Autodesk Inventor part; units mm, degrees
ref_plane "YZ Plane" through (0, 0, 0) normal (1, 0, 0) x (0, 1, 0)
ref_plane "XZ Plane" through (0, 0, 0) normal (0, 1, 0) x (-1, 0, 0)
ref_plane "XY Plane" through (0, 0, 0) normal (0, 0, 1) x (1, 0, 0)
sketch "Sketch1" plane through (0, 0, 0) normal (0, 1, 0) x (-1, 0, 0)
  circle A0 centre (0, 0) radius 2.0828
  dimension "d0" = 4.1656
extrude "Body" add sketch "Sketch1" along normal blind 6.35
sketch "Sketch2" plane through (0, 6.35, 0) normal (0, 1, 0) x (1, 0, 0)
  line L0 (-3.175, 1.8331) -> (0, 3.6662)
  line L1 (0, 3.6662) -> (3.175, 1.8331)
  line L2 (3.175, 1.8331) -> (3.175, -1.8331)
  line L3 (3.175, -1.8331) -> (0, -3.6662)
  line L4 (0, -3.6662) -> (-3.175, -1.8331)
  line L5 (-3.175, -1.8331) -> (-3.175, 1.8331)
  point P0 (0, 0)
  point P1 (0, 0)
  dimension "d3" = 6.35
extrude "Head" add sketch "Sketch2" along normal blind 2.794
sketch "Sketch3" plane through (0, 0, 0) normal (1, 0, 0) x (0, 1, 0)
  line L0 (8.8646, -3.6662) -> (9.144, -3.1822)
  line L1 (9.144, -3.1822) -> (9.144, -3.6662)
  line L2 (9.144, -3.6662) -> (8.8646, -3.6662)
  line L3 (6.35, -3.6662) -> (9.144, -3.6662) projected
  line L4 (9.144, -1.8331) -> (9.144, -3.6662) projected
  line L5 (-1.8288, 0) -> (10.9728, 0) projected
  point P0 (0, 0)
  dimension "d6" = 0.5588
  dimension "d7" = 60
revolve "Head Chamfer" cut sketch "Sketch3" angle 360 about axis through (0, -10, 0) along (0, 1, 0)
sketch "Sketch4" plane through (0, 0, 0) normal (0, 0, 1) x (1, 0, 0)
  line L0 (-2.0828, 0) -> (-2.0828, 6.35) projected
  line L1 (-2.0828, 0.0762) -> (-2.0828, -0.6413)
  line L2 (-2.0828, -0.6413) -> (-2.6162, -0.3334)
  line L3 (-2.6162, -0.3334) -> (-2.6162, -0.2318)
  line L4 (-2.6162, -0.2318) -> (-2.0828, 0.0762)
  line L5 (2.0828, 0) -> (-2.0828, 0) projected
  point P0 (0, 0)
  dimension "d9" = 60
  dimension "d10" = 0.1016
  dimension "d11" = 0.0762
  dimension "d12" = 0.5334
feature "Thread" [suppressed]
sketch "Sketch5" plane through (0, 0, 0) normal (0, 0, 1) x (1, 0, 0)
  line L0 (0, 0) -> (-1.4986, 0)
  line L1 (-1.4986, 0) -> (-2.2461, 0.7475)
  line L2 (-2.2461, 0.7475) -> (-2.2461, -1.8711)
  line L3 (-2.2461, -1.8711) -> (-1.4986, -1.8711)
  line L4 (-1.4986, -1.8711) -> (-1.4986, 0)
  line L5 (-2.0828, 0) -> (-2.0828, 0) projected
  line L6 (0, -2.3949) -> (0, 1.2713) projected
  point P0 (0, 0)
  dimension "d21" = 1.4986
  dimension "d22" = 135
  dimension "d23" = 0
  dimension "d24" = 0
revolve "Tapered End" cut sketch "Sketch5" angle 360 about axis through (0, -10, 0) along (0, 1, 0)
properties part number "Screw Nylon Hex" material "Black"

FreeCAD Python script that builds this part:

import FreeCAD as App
import Part
import Sketcher

V = App.Vector
Q = App.Units.Quantity


def add_polygon(sketch, points):
    """Adds a closed chain of lines whose ends are joined by coincident constraints."""
    first, n = sketch.GeometryCount, len(points)
    for a, b in zip(points, points[1:] + points[:1]):
        sketch.addGeometry(Part.LineSegment(App.Vector(*a, 0), App.Vector(*b, 0)), False)
    for i in range(n):
        sketch.addConstraint(Sketcher.Constraint("Coincident", first + i, 2, first + (i + 1) % n, 1))

doc = App.newDocument("Part")
params = doc.addObject("Spreadsheet::Sheet", "Params")
for row, (alias, value) in enumerate([
    ("sketch1_diameter", "0.164 in"),
    ("pad1_length", "0.25 in"),
    ("pad2_length", "0.11 in"),
    ("sketch3_length", "0.022 in"),
    ("sketch3_width", "0.011 in"),
    ("groove_angle", "360 deg"),
    ("groove2_angle", "360 deg"),
], start=1):
    params.set(f"A{row}", alias)
    params.set(f"B{row}", "=" + value)
    params.setAlias(f"B{row}", alias)

body = doc.addObject("PartDesign::Body", "Body")

# Sketch on XZ plane
sketch1 = doc.addObject("Sketcher::SketchObject", "Sketch")
body.addObject(sketch1)
sketch1.AttachmentSupport = (doc.XZ_Plane, [""])
sketch1.MapMode = "FlatFace"
sketch1.addGeometry(Part.Circle(V(0, 0, 0), V(0, 0, 1), 2.0828), False)
sketch1.addConstraint([
    Sketcher.Constraint("Coincident", 0, 3, -1, 1),
    Sketcher.Constraint("Diameter", 0, Q("0.164 in")),
])
sketch1.setExpression("Constraints[1]", "Params.sketch1_diameter")
pad1 = doc.addObject("PartDesign::Pad", "Pad")
body.addObject(pad1)
pad1.Profile = sketch1
pad1.setExpression("Length", "Params.pad1_length")
pad1.Reversed = True

# Sketch on XZ plane
sketch2 = doc.addObject("Sketcher::SketchObject", "Sketch001")
body.addObject(sketch2)
sketch2.AttachmentSupport = (doc.XZ_Plane, [""])
sketch2.MapMode = "FlatFace"
sketch2.AttachmentOffset = App.Placement(V(0, 0, -0.25 * 25.4), App.Rotation())
add_polygon(sketch2, [(0, -3.6662), (-3.175, -1.8331), (-3.175, 1.8331), (0, 3.6662), (3.175, 1.8331), (3.175, -1.8331)])  # lines 0-5
sketch2.addConstraint([
    Sketcher.Constraint("Vertical", 1),
    Sketcher.Constraint("Vertical", 4),
    Sketcher.Constraint("Symmetric", 0, 2, 3, 2, -1, 1),
    Sketcher.Constraint("Symmetric", 2, 2, 5, 2, -1, 1),
    Sketcher.Constraint("PointOnObject", 2, 2, -2),
    Sketcher.Constraint("Parallel", 2, 5),
    Sketcher.Constraint("Horizontal", 1, 2, 3, 2),
    Sketcher.Constraint("DistanceX", 1, 2, 3, 2, Q("0.25 in")),
    Sketcher.Constraint("Angle", 0, Q("149.9998 deg")),
    Sketcher.Constraint("DistanceY", 1, 1, 1, 2, 3.6662),
])
pad2 = doc.addObject("PartDesign::Pad", "Pad001")
body.addObject(pad2)
pad2.Profile = sketch2
pad2.setExpression("Length", "Params.pad2_length")
pad2.Reversed = True

# Sketch on YZ plane
sketch3 = doc.addObject("Sketcher::SketchObject", "Sketch002")
body.addObject(sketch3)
sketch3.AttachmentSupport = (doc.YZ_Plane, [""])
sketch3.MapMode = "FlatFace"
add_polygon(sketch3, [(9.144, -3.1822), (8.8646, -3.6662), (9.144, -3.6662)])  # lines 0-2
sketch3.addConstraint([
    Sketcher.Constraint("Horizontal", 1),
    Sketcher.Constraint("Vertical", 2),
    Sketcher.Constraint("Distance", 0, Q("0.022 in")),
    Sketcher.Constraint("DistanceX", 1, 1, 1, 2, Q("0.011 in")),
    Sketcher.Constraint("DistanceX", -1, 1, 1, 2, Q("0.36 in")),
    Sketcher.Constraint("DistanceY", 0, 2, -1, 1, 3.6662),
])
sketch3.setExpression("Constraints[5]", "Params.sketch3_length")
sketch3.setExpression("Constraints[6]", "Params.sketch3_width")
groove = doc.addObject("PartDesign::Groove", "Groove")
body.addObject(groove)
groove.Profile = sketch3
groove.ReferenceAxis = (sketch3, ["H_Axis"])
groove.setExpression("Angle", "Params.groove_angle")

# Sketch on XY plane
sketch4 = doc.addObject("Sketcher::SketchObject", "Sketch003")
body.addObject(sketch4)
sketch4.AttachmentSupport = (doc.XY_Plane, [""])
sketch4.MapMode = "FlatFace"
add_polygon(sketch4, [(-1.4986, -1.8711), (-1.4986, 0), (-2.2461, 0.7475), (-2.2461, -1.8711)])  # lines 0-3
sketch4.addConstraint([
    Sketcher.Constraint("Vertical", 0),
    Sketcher.Constraint("Vertical", 2),
    Sketcher.Constraint("Horizontal", 3),
    Sketcher.Constraint("PointOnObject", 0, 2, -1),
    Sketcher.Constraint("Angle", 1, Q("135 deg")),
    Sketcher.Constraint("DistanceX", 0, 2, -1, 1, Q("0.059 in")),
    Sketcher.Constraint("DistanceY", 2, 2, 2, 1, Q("0.1031 in")),
    Sketcher.Constraint("DistanceX", 3, 1, 3, 2, 0.7475),
])
groove2 = doc.addObject("PartDesign::Groove", "Groove001")
body.addObject(groove2)
groove2.Profile = sketch4
groove2.ReferenceAxis = (sketch4, ["V_Axis"])
groove2.setExpression("Angle", "Params.groove2_angle")

doc.recompute()
